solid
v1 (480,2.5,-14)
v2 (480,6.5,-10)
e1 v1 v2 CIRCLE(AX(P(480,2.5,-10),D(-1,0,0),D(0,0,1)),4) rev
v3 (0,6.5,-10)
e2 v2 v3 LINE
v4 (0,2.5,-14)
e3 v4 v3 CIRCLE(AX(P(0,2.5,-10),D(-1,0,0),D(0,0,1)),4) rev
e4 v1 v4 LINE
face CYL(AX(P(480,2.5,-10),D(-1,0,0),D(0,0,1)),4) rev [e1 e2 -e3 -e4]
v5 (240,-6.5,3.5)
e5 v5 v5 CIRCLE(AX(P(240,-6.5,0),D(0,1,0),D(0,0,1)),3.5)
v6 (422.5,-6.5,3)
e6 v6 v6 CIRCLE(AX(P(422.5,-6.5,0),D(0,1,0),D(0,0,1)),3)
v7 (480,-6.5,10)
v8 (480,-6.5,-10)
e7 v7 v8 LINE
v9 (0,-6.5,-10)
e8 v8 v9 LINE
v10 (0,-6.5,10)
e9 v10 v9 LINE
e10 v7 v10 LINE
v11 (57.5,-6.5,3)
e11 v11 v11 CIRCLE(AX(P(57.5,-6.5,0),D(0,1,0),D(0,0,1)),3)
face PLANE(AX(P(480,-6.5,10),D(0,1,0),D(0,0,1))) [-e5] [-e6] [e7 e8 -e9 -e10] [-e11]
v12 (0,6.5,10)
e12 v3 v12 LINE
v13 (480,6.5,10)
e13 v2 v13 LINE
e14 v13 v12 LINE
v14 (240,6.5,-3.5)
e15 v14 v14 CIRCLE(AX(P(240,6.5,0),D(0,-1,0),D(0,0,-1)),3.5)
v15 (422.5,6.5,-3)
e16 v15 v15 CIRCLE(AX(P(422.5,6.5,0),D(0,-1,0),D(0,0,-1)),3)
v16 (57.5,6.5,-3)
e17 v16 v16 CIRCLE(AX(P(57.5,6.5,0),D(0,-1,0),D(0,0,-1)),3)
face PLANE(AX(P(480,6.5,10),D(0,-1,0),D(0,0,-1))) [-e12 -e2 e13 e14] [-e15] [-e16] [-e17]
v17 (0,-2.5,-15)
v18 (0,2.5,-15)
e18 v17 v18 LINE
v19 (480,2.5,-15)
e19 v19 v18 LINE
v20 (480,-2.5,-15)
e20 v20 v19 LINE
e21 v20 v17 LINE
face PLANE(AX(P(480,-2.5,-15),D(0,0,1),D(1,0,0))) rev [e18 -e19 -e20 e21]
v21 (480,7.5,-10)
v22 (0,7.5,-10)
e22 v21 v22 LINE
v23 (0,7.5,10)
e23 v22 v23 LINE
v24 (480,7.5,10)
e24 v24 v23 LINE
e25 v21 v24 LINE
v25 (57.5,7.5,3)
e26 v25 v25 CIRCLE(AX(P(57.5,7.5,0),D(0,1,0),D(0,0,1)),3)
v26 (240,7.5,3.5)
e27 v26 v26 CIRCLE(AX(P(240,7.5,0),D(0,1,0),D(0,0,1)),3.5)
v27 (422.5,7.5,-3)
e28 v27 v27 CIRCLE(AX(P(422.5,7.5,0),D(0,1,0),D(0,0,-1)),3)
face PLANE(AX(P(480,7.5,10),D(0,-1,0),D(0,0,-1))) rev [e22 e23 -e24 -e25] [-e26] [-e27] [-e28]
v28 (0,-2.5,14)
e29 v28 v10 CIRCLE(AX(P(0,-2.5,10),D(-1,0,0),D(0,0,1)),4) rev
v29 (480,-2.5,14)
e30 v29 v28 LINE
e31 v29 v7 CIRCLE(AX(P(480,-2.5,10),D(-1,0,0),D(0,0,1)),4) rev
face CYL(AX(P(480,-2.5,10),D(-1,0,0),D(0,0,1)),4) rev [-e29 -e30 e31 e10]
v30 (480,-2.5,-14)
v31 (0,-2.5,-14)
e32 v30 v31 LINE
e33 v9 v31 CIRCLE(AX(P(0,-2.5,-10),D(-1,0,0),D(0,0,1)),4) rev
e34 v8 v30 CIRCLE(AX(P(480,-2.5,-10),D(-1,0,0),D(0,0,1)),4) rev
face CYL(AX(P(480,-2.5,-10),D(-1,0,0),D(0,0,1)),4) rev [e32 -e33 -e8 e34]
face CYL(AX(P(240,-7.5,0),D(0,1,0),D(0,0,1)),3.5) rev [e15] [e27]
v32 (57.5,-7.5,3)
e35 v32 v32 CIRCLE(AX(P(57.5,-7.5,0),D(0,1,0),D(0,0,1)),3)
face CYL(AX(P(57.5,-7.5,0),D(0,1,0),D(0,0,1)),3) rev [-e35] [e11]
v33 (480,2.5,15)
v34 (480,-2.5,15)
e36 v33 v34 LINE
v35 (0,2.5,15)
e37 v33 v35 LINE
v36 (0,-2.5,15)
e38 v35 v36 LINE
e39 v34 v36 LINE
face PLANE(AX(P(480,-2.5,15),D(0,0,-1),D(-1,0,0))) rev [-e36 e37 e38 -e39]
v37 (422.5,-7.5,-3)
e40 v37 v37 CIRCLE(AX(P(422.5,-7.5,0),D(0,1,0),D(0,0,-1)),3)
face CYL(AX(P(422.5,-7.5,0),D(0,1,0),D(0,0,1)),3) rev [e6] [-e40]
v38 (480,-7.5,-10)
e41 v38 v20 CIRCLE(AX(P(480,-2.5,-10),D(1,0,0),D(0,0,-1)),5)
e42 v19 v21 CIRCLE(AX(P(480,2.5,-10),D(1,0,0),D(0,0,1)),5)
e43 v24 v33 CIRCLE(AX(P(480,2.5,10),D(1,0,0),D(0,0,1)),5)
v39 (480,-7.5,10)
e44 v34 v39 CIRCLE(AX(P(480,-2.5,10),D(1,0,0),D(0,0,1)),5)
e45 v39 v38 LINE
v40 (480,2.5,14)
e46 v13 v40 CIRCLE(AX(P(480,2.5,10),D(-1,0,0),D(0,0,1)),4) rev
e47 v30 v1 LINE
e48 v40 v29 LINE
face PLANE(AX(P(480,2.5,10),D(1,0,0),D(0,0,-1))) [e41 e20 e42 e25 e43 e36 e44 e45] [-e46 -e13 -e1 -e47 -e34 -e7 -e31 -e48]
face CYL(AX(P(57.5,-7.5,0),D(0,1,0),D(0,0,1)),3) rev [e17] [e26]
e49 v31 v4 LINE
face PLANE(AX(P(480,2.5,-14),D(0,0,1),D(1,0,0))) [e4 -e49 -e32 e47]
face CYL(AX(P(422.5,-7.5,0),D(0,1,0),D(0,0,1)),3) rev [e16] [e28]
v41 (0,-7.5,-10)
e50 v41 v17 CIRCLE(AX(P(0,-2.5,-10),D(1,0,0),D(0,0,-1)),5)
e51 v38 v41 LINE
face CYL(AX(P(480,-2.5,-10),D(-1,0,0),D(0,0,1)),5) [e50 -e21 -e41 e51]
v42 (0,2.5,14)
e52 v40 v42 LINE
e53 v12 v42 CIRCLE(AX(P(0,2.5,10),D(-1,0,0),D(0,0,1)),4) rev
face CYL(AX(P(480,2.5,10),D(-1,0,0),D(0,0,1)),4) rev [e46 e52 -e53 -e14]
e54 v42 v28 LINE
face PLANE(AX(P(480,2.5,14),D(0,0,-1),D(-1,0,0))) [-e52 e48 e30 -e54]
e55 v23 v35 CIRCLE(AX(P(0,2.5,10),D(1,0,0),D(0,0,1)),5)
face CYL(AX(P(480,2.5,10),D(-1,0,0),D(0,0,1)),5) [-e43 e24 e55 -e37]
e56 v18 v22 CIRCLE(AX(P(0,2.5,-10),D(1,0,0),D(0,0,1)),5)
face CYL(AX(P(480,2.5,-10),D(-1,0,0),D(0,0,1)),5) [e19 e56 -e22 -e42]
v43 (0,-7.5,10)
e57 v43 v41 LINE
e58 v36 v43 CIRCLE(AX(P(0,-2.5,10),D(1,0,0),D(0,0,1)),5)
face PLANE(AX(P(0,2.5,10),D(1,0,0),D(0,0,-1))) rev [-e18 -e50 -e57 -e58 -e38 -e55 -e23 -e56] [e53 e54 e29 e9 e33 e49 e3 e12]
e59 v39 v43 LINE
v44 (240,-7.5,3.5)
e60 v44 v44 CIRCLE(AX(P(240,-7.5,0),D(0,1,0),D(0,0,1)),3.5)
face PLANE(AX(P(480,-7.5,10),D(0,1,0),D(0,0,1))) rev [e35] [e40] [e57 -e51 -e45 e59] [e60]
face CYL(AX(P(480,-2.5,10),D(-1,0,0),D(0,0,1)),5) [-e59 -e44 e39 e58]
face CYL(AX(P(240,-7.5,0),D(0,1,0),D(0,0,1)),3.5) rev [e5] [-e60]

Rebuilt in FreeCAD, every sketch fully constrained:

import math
import FreeCAD as App
import Part
import Sketcher
Q = App.Units.Quantity

doc = App.newDocument("Part")
body = doc.addObject("PartDesign::Body", "Body")

# Sketch on YZ plane
sketch1 = body.newObject("Sketcher::SketchObject", "Sketch")
sketch1.AttachmentSupport = (doc.getObject("YZ_Plane"), [""])
sketch1.MapMode = "FlatFace"
sketch1.addGeometry(Part.LineSegment(App.Vector(7.5, -10, 0), App.Vector(7.5, 10, 0)), False)
sketch1.addGeometry(Part.ArcOfCircle(Part.Circle(App.Vector(2.5, 10, 0), App.Vector(0, 0, 1), 5), math.radians(0), math.radians(90)), False)
sketch1.addGeometry(Part.LineSegment(App.Vector(2.5, 15, 0), App.Vector(-2.5, 15, 0)), False)
sketch1.addGeometry(Part.ArcOfCircle(Part.Circle(App.Vector(-2.5, 10, 0), App.Vector(0, 0, 1), 5), math.radians(90), math.radians(180)), False)
sketch1.addGeometry(Part.LineSegment(App.Vector(-7.5, 10, 0), App.Vector(-7.5, -10, 0)), False)
sketch1.addGeometry(Part.ArcOfCircle(Part.Circle(App.Vector(-2.5, -10, 0), App.Vector(0, 0, 1), 5), math.radians(180), math.radians(270)), False)
sketch1.addGeometry(Part.LineSegment(App.Vector(-2.5, -15, 0), App.Vector(2.5, -15, 0)), False)
sketch1.addGeometry(Part.ArcOfCircle(Part.Circle(App.Vector(2.5, -10, 0), App.Vector(0, 0, 1), 5), math.radians(-90), math.radians(0)), False)
sketch1.addGeometry(Part.LineSegment(App.Vector(6.5, 10, 0), App.Vector(6.5, -10, 0)), False)
sketch1.addGeometry(Part.ArcOfCircle(Part.Circle(App.Vector(2.5, -10, 0), App.Vector(0, 0, 1), 4), math.radians(-90), math.radians(0)), False)
sketch1.addGeometry(Part.LineSegment(App.Vector(2.5, -14, 0), App.Vector(-2.5, -14, 0)), False)
sketch1.addGeometry(Part.ArcOfCircle(Part.Circle(App.Vector(-2.5, -10, 0), App.Vector(0, 0, 1), 4), math.radians(180), math.radians(270)), False)
sketch1.addGeometry(Part.LineSegment(App.Vector(-6.5, -10, 0), App.Vector(-6.5, 10, 0)), False)
sketch1.addGeometry(Part.ArcOfCircle(Part.Circle(App.Vector(-2.5, 10, 0), App.Vector(0, 0, 1), 4), math.radians(90), math.radians(180)), False)
sketch1.addGeometry(Part.LineSegment(App.Vector(-2.5, 14, 0), App.Vector(2.5, 14, 0)), False)
sketch1.addGeometry(Part.ArcOfCircle(Part.Circle(App.Vector(2.5, 10, 0), App.Vector(0, 0, 1), 4), math.radians(0), math.radians(90)), False)
sketch1.addConstraint(Sketcher.Constraint("Tangent", 0, 2, 1, 1))
sketch1.addConstraint(Sketcher.Constraint("Tangent", 1, 2, 2, 1))
sketch1.addConstraint(Sketcher.Constraint("Tangent", 2, 2, 3, 1))
sketch1.addConstraint(Sketcher.Constraint("Tangent", 3, 2, 4, 1))
sketch1.addConstraint(Sketcher.Constraint("Tangent", 4, 2, 5, 1))
sketch1.addConstraint(Sketcher.Constraint("Tangent", 5, 2, 6, 1))
sketch1.addConstraint(Sketcher.Constraint("Tangent", 6, 2, 7, 1))
sketch1.addConstraint(Sketcher.Constraint("Tangent", 7, 2, 0, 1))
sketch1.addConstraint(Sketcher.Constraint("Tangent", 8, 2, 9, 2))
sketch1.addConstraint(Sketcher.Constraint("Tangent", 9, 1, 10, 1))
sketch1.addConstraint(Sketcher.Constraint("Tangent", 10, 2, 11, 2))
sketch1.addConstraint(Sketcher.Constraint("Tangent", 11, 1, 12, 1))
sketch1.addConstraint(Sketcher.Constraint("Tangent", 12, 2, 13, 2))
sketch1.addConstraint(Sketcher.Constraint("Tangent", 13, 1, 14, 1))
sketch1.addConstraint(Sketcher.Constraint("Tangent", 14, 2, 15, 2))
sketch1.addConstraint(Sketcher.Constraint("Tangent", 15, 1, 8, 1))
sketch1.addConstraint(Sketcher.Constraint("Vertical", 0))
sketch1.addConstraint(Sketcher.Constraint("Horizontal", 2))
sketch1.addConstraint(Sketcher.Constraint("Vertical", 4))
sketch1.addConstraint(Sketcher.Constraint("Horizontal", 6))
sketch1.addConstraint(Sketcher.Constraint("Vertical", 8))
sketch1.addConstraint(Sketcher.Constraint("Horizontal", 10))
sketch1.addConstraint(Sketcher.Constraint("Vertical", 12))
sketch1.addConstraint(Sketcher.Constraint("Horizontal", 14))
sketch1.addConstraint(Sketcher.Constraint("Coincident", 9, 3, 7, 3))
sketch1.addConstraint(Sketcher.Constraint("Coincident", 11, 3, 5, 3))
sketch1.addConstraint(Sketcher.Constraint("Coincident", 13, 3, 3, 3))
sketch1.addConstraint(Sketcher.Constraint("Equal", 1, 3))
sketch1.addConstraint(Sketcher.Constraint("Equal", 3, 5))
sketch1.addConstraint(Sketcher.Constraint("Equal", 5, 7))
sketch1.addConstraint(Sketcher.Constraint("Equal", 13, 15))
sketch1.addConstraint(Sketcher.Constraint("Symmetric", 1, 3, 5, 3, -1, 1))
sketch1.addConstraint(Sketcher.Constraint("Radius", 1, Q("5 mm")))
sketch1.addConstraint(Sketcher.Constraint("Radius", 9, Q("4 mm")))
sketch1.addConstraint(Sketcher.Constraint("DistanceX", 2, 2, 2, 1, Q("5 mm")))
sketch1.addConstraint(Sketcher.Constraint("DistanceY", 0, 1, 0, 2, Q("20 mm")))
pad1 = body.newObject("PartDesign::Pad", "Pad")
pad1.Profile = sketch1
pad1.Length = 480

# Sketch on XZ plane
sketch2 = body.newObject("Sketcher::SketchObject", "Sketch001")
sketch2.AttachmentSupport = (doc.getObject("XZ_Plane"), [""])
sketch2.MapMode = "FlatFace"
sketch2.AttachmentOffset = App.Placement(App.Vector(0, 0, -7.5), App.Rotation())
sketch2.addGeometry(Part.Circle(App.Vector(240, 0, 0), App.Vector(0, 0, 1), 3.5), False)
sketch2.addGeometry(Part.Circle(App.Vector(57.5, 0, 0), App.Vector(0, 0, 1), 3), False)
sketch2.addGeometry(Part.Circle(App.Vector(422.5, 0, 0), App.Vector(0, 0, 1), 3), False)
sketch2.addConstraint(Sketcher.Constraint("Equal", 1, 2))
sketch2.addConstraint(Sketcher.Constraint("PointOnObject", 0, 3, -1))
sketch2.addConstraint(Sketcher.Constraint("PointOnObject", 1, 3, -1))
sketch2.addConstraint(Sketcher.Constraint("PointOnObject", 2, 3, -1))
sketch2.addConstraint(Sketcher.Constraint("Diameter", 0, Q("7 mm")))
sketch2.addConstraint(Sketcher.Constraint("Diameter", 1, Q("6 mm")))
sketch2.addConstraint(Sketcher.Constraint("DistanceX", -1, 1, 0, 3, Q("240 mm")))
sketch2.addConstraint(Sketcher.Constraint("DistanceX", 1, 3, 2, 3, Q("365 mm")))
sketch2.addConstraint(Sketcher.Constraint("DistanceX", -1, 1, 1, 3, Q("57.5 mm")))
pocket1 = body.newObject("PartDesign::Pocket", "Pocket")
pocket1.Profile = sketch2
pocket1.Type = "ThroughAll"
pocket1.Reversed = True

doc.recompute()
